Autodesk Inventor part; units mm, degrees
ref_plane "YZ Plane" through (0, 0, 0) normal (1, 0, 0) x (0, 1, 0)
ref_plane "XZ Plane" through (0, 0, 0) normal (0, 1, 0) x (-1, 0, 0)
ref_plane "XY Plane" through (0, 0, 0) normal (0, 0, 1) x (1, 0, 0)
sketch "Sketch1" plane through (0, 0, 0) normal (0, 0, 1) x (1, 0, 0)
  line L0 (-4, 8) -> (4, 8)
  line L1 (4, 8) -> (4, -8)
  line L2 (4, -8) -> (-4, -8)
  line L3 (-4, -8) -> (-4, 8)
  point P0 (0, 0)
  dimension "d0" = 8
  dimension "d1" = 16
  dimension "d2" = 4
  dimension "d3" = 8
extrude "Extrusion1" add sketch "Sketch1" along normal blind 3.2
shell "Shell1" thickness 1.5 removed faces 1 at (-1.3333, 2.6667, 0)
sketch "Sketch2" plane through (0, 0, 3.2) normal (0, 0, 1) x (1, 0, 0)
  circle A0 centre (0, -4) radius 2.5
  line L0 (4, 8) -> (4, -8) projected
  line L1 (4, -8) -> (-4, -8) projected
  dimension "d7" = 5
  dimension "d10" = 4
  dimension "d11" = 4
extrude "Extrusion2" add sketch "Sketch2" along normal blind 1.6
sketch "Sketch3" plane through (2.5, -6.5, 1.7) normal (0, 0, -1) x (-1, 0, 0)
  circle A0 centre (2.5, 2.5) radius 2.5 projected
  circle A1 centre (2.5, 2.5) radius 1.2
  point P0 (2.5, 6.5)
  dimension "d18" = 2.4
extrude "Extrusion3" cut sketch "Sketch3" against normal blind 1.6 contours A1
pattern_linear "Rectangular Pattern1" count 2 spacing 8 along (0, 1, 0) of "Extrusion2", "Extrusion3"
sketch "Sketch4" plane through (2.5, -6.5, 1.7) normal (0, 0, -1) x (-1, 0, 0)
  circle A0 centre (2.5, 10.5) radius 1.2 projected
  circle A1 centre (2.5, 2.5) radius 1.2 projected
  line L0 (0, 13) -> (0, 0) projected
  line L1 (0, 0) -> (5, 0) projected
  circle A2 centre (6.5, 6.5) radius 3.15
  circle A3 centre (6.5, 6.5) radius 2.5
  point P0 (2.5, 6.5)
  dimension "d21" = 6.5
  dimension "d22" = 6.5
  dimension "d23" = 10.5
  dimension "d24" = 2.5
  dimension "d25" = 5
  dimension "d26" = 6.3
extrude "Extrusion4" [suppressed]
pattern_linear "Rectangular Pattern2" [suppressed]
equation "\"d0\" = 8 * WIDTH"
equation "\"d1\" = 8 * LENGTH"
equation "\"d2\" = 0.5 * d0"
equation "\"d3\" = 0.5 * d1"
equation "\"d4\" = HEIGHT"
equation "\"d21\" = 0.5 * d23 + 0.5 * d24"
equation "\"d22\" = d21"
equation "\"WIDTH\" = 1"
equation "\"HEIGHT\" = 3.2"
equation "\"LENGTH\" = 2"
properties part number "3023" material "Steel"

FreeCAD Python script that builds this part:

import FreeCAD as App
import Part
import Sketcher
from FreeCAD import Vector


def faces_at(feature, points):
    """Names of the faces that lie closest to the given points."""
    faces = feature.Shape.Faces
    near = lambda p: min(range(len(faces)), key=lambda i: faces[i].distToShape(Part.Vertex(*p))[0])
    return sorted({f"Face{near(p) + 1}" for p in points})

doc = App.newDocument("Part")
body = doc.addObject("PartDesign::Body", "Body")

# Sketch on XY plane
sketch1 = doc.addObject("Sketcher::SketchObject", "Sketch")
body.addObject(sketch1)
sketch1.AttachmentSupport = (doc.XY_Plane, [""])
sketch1.MapMode = "FlatFace"
sketch1.addGeometry([
    Part.LineSegment(Vector(4, 8, 0), Vector(-4, 8, 0)),
    Part.LineSegment(Vector(-4, 8, 0), Vector(-4, -8, 0)),
    Part.LineSegment(Vector(-4, -8, 0), Vector(4, -8, 0)),
    Part.LineSegment(Vector(4, -8, 0), Vector(4, 8, 0)),
], False)
sketch1.addConstraint([
    Sketcher.Constraint("Coincident", 0, 2, 1, 1),
    Sketcher.Constraint("Coincident", 1, 2, 2, 1),
    Sketcher.Constraint("Coincident", 2, 2, 3, 1),
    Sketcher.Constraint("Coincident", 3, 2, 0, 1),
    Sketcher.Constraint("Horizontal", 0),
    Sketcher.Constraint("Vertical", 1),
    Sketcher.Constraint("Horizontal", 2),
    Sketcher.Constraint("Vertical", 3),
    Sketcher.Constraint("Symmetric", 0, 2, 2, 2, -1, 1),
    Sketcher.Constraint("DistanceX", 0, 2, 0, 1, 8.0),
    Sketcher.Constraint("DistanceY", 1, 2, 1, 1, 16.0),
])
pad1 = doc.addObject("PartDesign::Pad", "Pad")
body.addObject(pad1)
pad1.Profile = sketch1
pad1.Length = 3.2
doc.recompute()

thickness = doc.addObject("PartDesign::Thickness", "Thickness")
body.addObject(thickness)
thickness.Base = (pad1, faces_at(pad1, [(-1.333, 2.667, 0)]))
thickness.Value = 1.5
thickness.Reversed = True
thickness.Join = "Intersection"

# Sketch on XY plane
sketch2 = doc.addObject("Sketcher::SketchObject", "Sketch001")
body.addObject(sketch2)
sketch2.AttachmentSupport = (doc.XY_Plane, [""])
sketch2.MapMode = "FlatFace"
sketch2.AttachmentOffset = App.Placement(Vector(0, 0, 3.2), App.Rotation())
sketch2.addGeometry(Part.Circle(Vector(0, -4, 0), Vector(0, 0, 1), 2.5), False)
sketch2.addConstraint([
    Sketcher.Constraint("PointOnObject", 0, 3, -2),
    Sketcher.Constraint("Diameter", 0, 5.0),
    Sketcher.Constraint("DistanceY", 0, 3, -1, 1, 4.0),
])
pad2 = doc.addObject("PartDesign::Pad", "Pad001")
body.addObject(pad2)
pad2.Profile = sketch2
pad2.Length = 1.6

# Sketch on XY plane
sketch3 = doc.addObject("Sketcher::SketchObject", "Sketch002")
body.addObject(sketch3)
sketch3.AttachmentSupport = (doc.XY_Plane, [""])
sketch3.MapMode = "FlatFace"
sketch3.AttachmentOffset = App.Placement(Vector(0, 0, 1.7), App.Rotation())
sketch3.addGeometry(Part.Circle(Vector(0, -4, 0), Vector(0, 0, 1), 1.2), False)
sketch3.addConstraint([
    Sketcher.Constraint("PointOnObject", 0, 3, -2),
    Sketcher.Constraint("Diameter", 0, 2.4),
    Sketcher.Constraint("DistanceY", 0, 3, -1, 1, 4.0),
])
pocket1 = doc.addObject("PartDesign::Pocket", "Pocket")
body.addObject(pocket1)
pocket1.Profile = sketch3
pocket1.Length = 1.6
pocket1.Reversed = True
doc.recompute()

linearpattern = doc.addObject("PartDesign::LinearPattern", "LinearPattern")
body.addObject(linearpattern)
linearpattern.Originals = [pad2, pocket1]
linearpattern.Direction = (doc.Y_Axis, [""])
linearpattern.Mode = "offset"
linearpattern.Offset = 8
linearpattern.Occurrences = 2
body.Tip = linearpattern

doc.recompute()
